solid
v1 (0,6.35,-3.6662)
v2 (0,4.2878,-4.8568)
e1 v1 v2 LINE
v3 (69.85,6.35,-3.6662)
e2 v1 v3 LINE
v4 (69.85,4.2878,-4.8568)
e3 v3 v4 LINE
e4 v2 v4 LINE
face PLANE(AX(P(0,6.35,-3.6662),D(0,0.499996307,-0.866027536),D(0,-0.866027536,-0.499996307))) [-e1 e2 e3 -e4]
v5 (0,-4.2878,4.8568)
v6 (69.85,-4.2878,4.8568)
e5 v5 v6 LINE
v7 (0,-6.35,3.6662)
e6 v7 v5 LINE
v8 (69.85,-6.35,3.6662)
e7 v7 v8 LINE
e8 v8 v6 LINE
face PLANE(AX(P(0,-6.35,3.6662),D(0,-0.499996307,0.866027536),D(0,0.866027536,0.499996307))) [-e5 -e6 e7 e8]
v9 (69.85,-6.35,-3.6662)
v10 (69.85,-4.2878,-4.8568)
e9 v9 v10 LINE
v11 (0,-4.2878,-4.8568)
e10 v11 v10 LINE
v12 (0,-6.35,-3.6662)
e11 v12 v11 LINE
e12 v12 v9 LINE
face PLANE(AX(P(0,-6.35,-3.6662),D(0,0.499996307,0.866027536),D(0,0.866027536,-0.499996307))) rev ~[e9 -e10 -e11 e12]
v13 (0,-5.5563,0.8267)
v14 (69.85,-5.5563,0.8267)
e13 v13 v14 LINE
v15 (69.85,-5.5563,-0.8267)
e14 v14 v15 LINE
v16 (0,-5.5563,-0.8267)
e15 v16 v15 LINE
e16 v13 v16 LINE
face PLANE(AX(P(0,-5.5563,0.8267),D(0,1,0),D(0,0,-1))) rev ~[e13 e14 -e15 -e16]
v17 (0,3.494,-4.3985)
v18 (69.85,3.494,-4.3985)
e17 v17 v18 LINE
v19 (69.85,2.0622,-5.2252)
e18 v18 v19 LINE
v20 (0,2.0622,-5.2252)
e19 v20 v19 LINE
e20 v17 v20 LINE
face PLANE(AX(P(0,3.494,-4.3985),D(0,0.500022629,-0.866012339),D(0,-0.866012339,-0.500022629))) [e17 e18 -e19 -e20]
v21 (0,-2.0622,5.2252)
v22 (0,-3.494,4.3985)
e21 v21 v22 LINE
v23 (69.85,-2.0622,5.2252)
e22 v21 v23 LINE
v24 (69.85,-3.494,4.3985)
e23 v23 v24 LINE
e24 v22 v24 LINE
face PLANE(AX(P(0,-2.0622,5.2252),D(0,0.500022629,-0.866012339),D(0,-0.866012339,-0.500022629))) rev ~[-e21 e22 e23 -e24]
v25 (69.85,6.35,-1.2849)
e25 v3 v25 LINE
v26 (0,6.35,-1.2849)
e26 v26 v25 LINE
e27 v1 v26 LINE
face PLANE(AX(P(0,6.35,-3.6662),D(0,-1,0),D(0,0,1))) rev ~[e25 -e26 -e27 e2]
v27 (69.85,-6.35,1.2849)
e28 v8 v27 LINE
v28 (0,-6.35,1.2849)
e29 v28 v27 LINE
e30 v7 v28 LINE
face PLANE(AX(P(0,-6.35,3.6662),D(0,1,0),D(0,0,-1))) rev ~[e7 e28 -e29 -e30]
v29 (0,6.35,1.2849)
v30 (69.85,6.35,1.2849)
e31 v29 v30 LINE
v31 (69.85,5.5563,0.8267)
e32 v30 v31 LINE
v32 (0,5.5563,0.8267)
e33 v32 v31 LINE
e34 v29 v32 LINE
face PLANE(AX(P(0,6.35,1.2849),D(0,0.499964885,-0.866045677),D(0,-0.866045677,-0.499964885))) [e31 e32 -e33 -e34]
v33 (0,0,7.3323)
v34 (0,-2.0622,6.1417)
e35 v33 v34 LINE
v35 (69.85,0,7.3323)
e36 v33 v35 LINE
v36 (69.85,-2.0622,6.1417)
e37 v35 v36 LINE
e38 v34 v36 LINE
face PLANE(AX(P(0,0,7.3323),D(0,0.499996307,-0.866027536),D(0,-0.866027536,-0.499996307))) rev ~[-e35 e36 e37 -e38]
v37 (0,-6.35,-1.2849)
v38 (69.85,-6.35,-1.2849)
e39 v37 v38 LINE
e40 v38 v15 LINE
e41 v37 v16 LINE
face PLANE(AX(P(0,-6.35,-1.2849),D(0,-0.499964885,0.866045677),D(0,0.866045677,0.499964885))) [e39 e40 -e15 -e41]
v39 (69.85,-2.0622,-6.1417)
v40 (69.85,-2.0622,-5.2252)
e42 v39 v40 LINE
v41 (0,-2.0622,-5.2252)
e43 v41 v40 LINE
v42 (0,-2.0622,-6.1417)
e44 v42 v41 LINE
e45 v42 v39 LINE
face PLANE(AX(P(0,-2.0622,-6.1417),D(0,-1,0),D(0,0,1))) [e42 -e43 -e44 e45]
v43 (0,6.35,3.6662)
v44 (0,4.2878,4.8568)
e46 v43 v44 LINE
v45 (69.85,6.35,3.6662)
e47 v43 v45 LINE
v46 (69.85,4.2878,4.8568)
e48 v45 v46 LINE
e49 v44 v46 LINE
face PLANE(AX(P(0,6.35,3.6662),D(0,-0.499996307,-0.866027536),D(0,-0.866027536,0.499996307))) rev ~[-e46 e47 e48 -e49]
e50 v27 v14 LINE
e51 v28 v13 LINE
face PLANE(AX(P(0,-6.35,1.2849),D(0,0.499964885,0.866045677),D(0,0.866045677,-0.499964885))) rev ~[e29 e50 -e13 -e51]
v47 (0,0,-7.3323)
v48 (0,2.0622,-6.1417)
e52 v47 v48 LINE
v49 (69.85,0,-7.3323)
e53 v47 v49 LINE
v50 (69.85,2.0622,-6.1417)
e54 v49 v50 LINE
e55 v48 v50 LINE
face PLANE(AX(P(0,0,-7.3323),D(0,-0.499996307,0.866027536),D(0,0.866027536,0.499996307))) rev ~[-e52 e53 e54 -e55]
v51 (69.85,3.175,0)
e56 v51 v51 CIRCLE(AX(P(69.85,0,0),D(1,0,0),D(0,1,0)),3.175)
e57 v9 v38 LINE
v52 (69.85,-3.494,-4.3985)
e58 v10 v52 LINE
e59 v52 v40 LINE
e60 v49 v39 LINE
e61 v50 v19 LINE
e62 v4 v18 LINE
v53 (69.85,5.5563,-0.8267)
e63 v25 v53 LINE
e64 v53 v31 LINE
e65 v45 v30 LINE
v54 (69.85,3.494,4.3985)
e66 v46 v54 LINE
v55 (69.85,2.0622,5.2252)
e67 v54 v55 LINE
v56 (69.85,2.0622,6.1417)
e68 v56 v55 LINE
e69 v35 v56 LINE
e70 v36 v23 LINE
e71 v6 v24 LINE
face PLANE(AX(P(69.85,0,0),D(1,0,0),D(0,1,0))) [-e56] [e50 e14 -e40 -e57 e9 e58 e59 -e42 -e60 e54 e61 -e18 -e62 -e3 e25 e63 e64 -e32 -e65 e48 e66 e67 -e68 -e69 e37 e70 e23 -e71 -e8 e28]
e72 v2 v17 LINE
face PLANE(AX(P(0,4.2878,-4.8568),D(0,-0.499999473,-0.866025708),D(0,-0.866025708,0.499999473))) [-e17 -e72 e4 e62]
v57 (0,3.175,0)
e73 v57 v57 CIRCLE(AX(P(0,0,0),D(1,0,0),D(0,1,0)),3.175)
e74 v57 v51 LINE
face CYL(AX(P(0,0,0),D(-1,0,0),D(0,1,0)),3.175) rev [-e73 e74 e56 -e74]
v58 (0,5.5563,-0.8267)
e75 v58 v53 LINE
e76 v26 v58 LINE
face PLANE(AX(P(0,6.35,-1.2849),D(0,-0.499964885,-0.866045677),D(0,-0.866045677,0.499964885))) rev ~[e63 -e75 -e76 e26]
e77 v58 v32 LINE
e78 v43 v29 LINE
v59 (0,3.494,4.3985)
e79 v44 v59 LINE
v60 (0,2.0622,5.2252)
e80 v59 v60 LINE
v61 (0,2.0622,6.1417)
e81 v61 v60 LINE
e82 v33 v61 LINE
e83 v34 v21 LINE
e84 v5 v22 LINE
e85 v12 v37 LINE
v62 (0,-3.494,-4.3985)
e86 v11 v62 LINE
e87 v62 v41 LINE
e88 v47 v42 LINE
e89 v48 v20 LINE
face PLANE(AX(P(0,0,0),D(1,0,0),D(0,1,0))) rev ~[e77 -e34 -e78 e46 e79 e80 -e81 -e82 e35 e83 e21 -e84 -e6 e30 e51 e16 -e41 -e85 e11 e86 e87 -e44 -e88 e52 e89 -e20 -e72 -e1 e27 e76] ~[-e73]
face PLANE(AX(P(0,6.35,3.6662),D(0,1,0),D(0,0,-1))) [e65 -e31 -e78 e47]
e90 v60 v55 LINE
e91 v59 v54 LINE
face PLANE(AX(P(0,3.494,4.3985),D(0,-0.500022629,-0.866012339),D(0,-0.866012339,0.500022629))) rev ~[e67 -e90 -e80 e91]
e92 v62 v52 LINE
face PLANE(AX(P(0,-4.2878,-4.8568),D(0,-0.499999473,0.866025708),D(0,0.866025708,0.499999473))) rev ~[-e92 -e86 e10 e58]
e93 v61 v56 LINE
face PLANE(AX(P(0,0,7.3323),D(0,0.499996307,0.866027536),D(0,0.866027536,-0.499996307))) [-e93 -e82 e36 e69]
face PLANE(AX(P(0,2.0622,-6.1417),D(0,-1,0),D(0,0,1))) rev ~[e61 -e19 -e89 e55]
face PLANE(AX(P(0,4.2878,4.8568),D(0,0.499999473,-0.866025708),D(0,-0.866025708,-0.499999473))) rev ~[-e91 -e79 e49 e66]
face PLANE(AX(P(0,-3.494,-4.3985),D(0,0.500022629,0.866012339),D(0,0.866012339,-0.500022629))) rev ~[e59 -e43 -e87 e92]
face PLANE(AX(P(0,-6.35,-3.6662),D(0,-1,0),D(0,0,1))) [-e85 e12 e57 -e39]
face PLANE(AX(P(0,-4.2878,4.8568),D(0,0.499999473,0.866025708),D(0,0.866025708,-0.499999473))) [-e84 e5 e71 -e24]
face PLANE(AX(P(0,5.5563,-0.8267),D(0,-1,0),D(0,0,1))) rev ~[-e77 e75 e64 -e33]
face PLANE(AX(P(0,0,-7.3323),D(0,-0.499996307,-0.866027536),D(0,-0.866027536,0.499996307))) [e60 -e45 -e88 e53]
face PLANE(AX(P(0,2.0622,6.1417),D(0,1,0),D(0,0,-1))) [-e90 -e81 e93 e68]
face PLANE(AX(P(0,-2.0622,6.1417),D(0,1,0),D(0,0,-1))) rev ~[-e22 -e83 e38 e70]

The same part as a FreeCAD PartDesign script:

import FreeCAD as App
import Part
import Sketcher
Q = App.Units.Quantity

doc = App.newDocument("Part")
body = doc.addObject("PartDesign::Body", "Body")

# Sketch on YZ plane
sketch1 = body.newObject("Sketcher::SketchObject", "Sketch")
sketch1.AttachmentSupport = (doc.getObject("YZ_Plane"), [""])
sketch1.MapMode = "FlatFace"
sketch1.addGeometry([
    Part.LineSegment(App.Vector(6.3, 1.3, 0), App.Vector(6.3, 3.7, 0)),  # 0
    Part.LineSegment(App.Vector(6.3, 3.7, 0), App.Vector(4.3, 4.9, 0)),  # 1
    Part.LineSegment(App.Vector(4.3, 4.9, 0), App.Vector(3.5, 4.4, 0)),  # 2
    Part.LineSegment(App.Vector(3.5, 4.4, 0), App.Vector(2.1, 5.2, 0)),  # 3
    Part.LineSegment(App.Vector(2.1, 5.2, 0), App.Vector(2.1, 6.1, 0)),  # 4
    Part.LineSegment(App.Vector(2.1, 6.1, 0), App.Vector(0, 7.3, 0)),  # 5
    Part.LineSegment(App.Vector(0, 7.3, 0), App.Vector(-2.1, 6.1, 0)),  # 6
    Part.LineSegment(App.Vector(-2.1, 6.1, 0), App.Vector(-2.1, 5.2, 0)),  # 7
    Part.LineSegment(App.Vector(-2.1, 5.2, 0), App.Vector(-3.5, 4.4, 0)),  # 8
    Part.LineSegment(App.Vector(-3.5, 4.4, 0), App.Vector(-4.3, 4.9, 0)),  # 9
    Part.LineSegment(App.Vector(-4.3, 4.9, 0), App.Vector(-6.3, 3.7, 0)),  # 10
    Part.LineSegment(App.Vector(-6.3, 3.7, 0), App.Vector(-6.3, 1.3, 0)),  # 11
    Part.LineSegment(App.Vector(-6.3, 1.3, 0), App.Vector(-5.6, 0.8, 0)),  # 12
    Part.LineSegment(App.Vector(-5.6, 0.8, 0), App.Vector(-5.6, -0.8, 0)),  # 13
    Part.LineSegment(App.Vector(-5.6, -0.8, 0), App.Vector(-6.3, -1.3, 0)),  # 14
    Part.LineSegment(App.Vector(-6.3, -1.3, 0), App.Vector(-6.3, -3.7, 0)),  # 15
    Part.LineSegment(App.Vector(-6.3, -3.7, 0), App.Vector(-4.3, -4.9, 0)),  # 16
    Part.LineSegment(App.Vector(-4.3, -4.9, 0), App.Vector(-3.5, -4.4, 0)),  # 17
    Part.LineSegment(App.Vector(-3.5, -4.4, 0), App.Vector(-2.1, -5.2, 0)),  # 18
    Part.LineSegment(App.Vector(-2.1, -5.2, 0), App.Vector(-2.1, -6.1, 0)),  # 19
    Part.LineSegment(App.Vector(-2.1, -6.1, 0), App.Vector(0, -7.3, 0)),  # 20
    Part.LineSegment(App.Vector(0, -7.3, 0), App.Vector(2.1, -6.1, 0)),  # 21
    Part.LineSegment(App.Vector(2.1, -6.1, 0), App.Vector(2.1, -5.2, 0)),  # 22
    Part.LineSegment(App.Vector(2.1, -5.2, 0), App.Vector(3.5, -4.4, 0)),  # 23
    Part.LineSegment(App.Vector(3.5, -4.4, 0), App.Vector(4.3, -4.9, 0)),  # 24
    Part.LineSegment(App.Vector(4.3, -4.9, 0), App.Vector(6.3, -3.7, 0)),  # 25
    Part.LineSegment(App.Vector(6.3, -3.7, 0), App.Vector(6.3, -1.3, 0)),  # 26
    Part.LineSegment(App.Vector(6.3, -1.3, 0), App.Vector(5.6, -0.8, 0)),  # 27
    Part.LineSegment(App.Vector(5.6, -0.8, 0), App.Vector(5.6, 0.8, 0)),  # 28
    Part.LineSegment(App.Vector(5.6, 0.8, 0), App.Vector(6.3, 1.3, 0)),  # 29
    Part.Circle(App.Vector(0, 0, 0), App.Vector(0, 0, 1), 3.2),  # 30
], False)
sketch1.addConstraint([
    Sketcher.Constraint("Coincident", 0, 2, 1, 1),
    Sketcher.Constraint("Coincident", 1, 2, 2, 1),
    Sketcher.Constraint("Coincident", 2, 2, 3, 1),
    Sketcher.Constraint("Coincident", 3, 2, 4, 1),
    Sketcher.Constraint("Coincident", 4, 2, 5, 1),
    Sketcher.Constraint("Coincident", 5, 2, 6, 1),
    Sketcher.Constraint("Coincident", 6, 2, 7, 1),
    Sketcher.Constraint("Coincident", 7, 2, 8, 1),
    Sketcher.Constraint("Coincident", 8, 2, 9, 1),
    Sketcher.Constraint("Coincident", 9, 2, 10, 1),
    Sketcher.Constraint("Coincident", 10, 2, 11, 1),
    Sketcher.Constraint("Coincident", 11, 2, 12, 1),
    Sketcher.Constraint("Coincident", 12, 2, 13, 1),
    Sketcher.Constraint("Coincident", 13, 2, 14, 1),
    Sketcher.Constraint("Coincident", 14, 2, 15, 1),
    Sketcher.Constraint("Coincident", 15, 2, 16, 1),
    Sketcher.Constraint("Coincident", 16, 2, 17, 1),
    Sketcher.Constraint("Coincident", 17, 2, 18, 1),
    Sketcher.Constraint("Coincident", 18, 2, 19, 1),
    Sketcher.Constraint("Coincident", 19, 2, 20, 1),
    Sketcher.Constraint("Coincident", 20, 2, 21, 1),
    Sketcher.Constraint("Coincident", 21, 2, 22, 1),
    Sketcher.Constraint("Coincident", 22, 2, 23, 1),
    Sketcher.Constraint("Coincident", 23, 2, 24, 1),
    Sketcher.Constraint("Coincident", 24, 2, 25, 1),
    Sketcher.Constraint("Coincident", 25, 2, 26, 1),
    Sketcher.Constraint("Coincident", 26, 2, 27, 1),
    Sketcher.Constraint("Coincident", 27, 2, 28, 1),
    Sketcher.Constraint("Coincident", 28, 2, 29, 1),
    Sketcher.Constraint("Coincident", 29, 2, 0, 1),
    Sketcher.Constraint("Vertical", 0),
    Sketcher.Constraint("Vertical", 4),
    Sketcher.Constraint("Vertical", 7),
    Sketcher.Constraint("Vertical", 11),
    Sketcher.Constraint("Vertical", 13),
    Sketcher.Constraint("Vertical", 15),
    Sketcher.Constraint("Vertical", 19),
    Sketcher.Constraint("Vertical", 22),
    Sketcher.Constraint("Vertical", 26),
    Sketcher.Constraint("Vertical", 28),
    Sketcher.Constraint("Coincident", 30, 3, -1, 1),
    Sketcher.Constraint("Symmetric", 0, 2, 15, 2, -1, 1),
    Sketcher.Constraint("Symmetric", 1, 2, 16, 2, -1, 1),
    Sketcher.Constraint("Symmetric", 2, 2, 17, 2, -1, 1),
    Sketcher.Constraint("Symmetric", 3, 2, 18, 2, -1, 1),
    Sketcher.Constraint("Symmetric", 5, 2, 20, 2, -1, 1),
    Sketcher.Constraint("Symmetric", 6, 2, 21, 2, -1, 1),
    Sketcher.Constraint("Symmetric", 8, 2, 23, 2, -1, 1),
    Sketcher.Constraint("Symmetric", 9, 2, 24, 2, -1, 1),
    Sketcher.Constraint("Symmetric", 10, 2, 25, 2, -1, 1),
    Sketcher.Constraint("Symmetric", 12, 2, 27, 2, -1, 1),
    Sketcher.Constraint("Symmetric", 4, 2, 6, 2, -2),
    Sketcher.Constraint("Symmetric", 2, 2, 8, 2, -2),
    Sketcher.Constraint("Symmetric", 1, 2, 9, 2, -2),
    Sketcher.Constraint("Symmetric", 0, 2, 10, 2, -2),
    Sketcher.Constraint("PointOnObject", 5, 2, -2),
    Sketcher.Constraint("Parallel", 1, 3),
    Sketcher.Constraint("Parallel", 3, 5),
    Sketcher.Constraint("Parallel", 2, 6),
    Sketcher.Constraint("Parallel", 6, 8),
    Sketcher.Constraint("Parallel", 9, 12),
    Sketcher.Constraint("Parallel", 10, 14),
    Sketcher.Constraint("Parallel", 18, 20),
    Sketcher.Constraint("Parallel", 21, 23),
    Sketcher.Constraint("Parallel", 24, 27),
    Sketcher.Constraint("Parallel", 25, 29),
    Sketcher.Constraint("Horizontal", 14, 2, 26, 2),
    Sketcher.Constraint("Horizontal", 12, 2, 28, 2),
    Sketcher.Constraint("Equal", 1, 5),
    Sketcher.Constraint("Equal", 9, 12),
    Sketcher.Constraint("Diameter", 30, Q("0.25 in")),
    Sketcher.Constraint("Angle", 1, Q("150.0002 deg")),
    Sketcher.Constraint("DistanceY", 0, 1, 0, 2, Q("0.093752 in")),
    Sketcher.Constraint("DistanceX", -1, 1, 0, 2, Q("0.25 in")),
    Sketcher.Constraint("Distance", 1, Q("0.093748 in")),
    Sketcher.Constraint("DistanceX", 2, 2, 1, 2, Q("0.031252 in")),
    Sketcher.Constraint("DistanceY", 13, 2, 13, 1, Q("0.0651 in")),
    Sketcher.Constraint("DistanceY", 4, 1, 4, 2, 0.9165),
])
pad1 = body.newObject("PartDesign::Pad", "Pad")
pad1.Profile = sketch1
pad1.Length = Q("2.75 in")

doc.recompute()
